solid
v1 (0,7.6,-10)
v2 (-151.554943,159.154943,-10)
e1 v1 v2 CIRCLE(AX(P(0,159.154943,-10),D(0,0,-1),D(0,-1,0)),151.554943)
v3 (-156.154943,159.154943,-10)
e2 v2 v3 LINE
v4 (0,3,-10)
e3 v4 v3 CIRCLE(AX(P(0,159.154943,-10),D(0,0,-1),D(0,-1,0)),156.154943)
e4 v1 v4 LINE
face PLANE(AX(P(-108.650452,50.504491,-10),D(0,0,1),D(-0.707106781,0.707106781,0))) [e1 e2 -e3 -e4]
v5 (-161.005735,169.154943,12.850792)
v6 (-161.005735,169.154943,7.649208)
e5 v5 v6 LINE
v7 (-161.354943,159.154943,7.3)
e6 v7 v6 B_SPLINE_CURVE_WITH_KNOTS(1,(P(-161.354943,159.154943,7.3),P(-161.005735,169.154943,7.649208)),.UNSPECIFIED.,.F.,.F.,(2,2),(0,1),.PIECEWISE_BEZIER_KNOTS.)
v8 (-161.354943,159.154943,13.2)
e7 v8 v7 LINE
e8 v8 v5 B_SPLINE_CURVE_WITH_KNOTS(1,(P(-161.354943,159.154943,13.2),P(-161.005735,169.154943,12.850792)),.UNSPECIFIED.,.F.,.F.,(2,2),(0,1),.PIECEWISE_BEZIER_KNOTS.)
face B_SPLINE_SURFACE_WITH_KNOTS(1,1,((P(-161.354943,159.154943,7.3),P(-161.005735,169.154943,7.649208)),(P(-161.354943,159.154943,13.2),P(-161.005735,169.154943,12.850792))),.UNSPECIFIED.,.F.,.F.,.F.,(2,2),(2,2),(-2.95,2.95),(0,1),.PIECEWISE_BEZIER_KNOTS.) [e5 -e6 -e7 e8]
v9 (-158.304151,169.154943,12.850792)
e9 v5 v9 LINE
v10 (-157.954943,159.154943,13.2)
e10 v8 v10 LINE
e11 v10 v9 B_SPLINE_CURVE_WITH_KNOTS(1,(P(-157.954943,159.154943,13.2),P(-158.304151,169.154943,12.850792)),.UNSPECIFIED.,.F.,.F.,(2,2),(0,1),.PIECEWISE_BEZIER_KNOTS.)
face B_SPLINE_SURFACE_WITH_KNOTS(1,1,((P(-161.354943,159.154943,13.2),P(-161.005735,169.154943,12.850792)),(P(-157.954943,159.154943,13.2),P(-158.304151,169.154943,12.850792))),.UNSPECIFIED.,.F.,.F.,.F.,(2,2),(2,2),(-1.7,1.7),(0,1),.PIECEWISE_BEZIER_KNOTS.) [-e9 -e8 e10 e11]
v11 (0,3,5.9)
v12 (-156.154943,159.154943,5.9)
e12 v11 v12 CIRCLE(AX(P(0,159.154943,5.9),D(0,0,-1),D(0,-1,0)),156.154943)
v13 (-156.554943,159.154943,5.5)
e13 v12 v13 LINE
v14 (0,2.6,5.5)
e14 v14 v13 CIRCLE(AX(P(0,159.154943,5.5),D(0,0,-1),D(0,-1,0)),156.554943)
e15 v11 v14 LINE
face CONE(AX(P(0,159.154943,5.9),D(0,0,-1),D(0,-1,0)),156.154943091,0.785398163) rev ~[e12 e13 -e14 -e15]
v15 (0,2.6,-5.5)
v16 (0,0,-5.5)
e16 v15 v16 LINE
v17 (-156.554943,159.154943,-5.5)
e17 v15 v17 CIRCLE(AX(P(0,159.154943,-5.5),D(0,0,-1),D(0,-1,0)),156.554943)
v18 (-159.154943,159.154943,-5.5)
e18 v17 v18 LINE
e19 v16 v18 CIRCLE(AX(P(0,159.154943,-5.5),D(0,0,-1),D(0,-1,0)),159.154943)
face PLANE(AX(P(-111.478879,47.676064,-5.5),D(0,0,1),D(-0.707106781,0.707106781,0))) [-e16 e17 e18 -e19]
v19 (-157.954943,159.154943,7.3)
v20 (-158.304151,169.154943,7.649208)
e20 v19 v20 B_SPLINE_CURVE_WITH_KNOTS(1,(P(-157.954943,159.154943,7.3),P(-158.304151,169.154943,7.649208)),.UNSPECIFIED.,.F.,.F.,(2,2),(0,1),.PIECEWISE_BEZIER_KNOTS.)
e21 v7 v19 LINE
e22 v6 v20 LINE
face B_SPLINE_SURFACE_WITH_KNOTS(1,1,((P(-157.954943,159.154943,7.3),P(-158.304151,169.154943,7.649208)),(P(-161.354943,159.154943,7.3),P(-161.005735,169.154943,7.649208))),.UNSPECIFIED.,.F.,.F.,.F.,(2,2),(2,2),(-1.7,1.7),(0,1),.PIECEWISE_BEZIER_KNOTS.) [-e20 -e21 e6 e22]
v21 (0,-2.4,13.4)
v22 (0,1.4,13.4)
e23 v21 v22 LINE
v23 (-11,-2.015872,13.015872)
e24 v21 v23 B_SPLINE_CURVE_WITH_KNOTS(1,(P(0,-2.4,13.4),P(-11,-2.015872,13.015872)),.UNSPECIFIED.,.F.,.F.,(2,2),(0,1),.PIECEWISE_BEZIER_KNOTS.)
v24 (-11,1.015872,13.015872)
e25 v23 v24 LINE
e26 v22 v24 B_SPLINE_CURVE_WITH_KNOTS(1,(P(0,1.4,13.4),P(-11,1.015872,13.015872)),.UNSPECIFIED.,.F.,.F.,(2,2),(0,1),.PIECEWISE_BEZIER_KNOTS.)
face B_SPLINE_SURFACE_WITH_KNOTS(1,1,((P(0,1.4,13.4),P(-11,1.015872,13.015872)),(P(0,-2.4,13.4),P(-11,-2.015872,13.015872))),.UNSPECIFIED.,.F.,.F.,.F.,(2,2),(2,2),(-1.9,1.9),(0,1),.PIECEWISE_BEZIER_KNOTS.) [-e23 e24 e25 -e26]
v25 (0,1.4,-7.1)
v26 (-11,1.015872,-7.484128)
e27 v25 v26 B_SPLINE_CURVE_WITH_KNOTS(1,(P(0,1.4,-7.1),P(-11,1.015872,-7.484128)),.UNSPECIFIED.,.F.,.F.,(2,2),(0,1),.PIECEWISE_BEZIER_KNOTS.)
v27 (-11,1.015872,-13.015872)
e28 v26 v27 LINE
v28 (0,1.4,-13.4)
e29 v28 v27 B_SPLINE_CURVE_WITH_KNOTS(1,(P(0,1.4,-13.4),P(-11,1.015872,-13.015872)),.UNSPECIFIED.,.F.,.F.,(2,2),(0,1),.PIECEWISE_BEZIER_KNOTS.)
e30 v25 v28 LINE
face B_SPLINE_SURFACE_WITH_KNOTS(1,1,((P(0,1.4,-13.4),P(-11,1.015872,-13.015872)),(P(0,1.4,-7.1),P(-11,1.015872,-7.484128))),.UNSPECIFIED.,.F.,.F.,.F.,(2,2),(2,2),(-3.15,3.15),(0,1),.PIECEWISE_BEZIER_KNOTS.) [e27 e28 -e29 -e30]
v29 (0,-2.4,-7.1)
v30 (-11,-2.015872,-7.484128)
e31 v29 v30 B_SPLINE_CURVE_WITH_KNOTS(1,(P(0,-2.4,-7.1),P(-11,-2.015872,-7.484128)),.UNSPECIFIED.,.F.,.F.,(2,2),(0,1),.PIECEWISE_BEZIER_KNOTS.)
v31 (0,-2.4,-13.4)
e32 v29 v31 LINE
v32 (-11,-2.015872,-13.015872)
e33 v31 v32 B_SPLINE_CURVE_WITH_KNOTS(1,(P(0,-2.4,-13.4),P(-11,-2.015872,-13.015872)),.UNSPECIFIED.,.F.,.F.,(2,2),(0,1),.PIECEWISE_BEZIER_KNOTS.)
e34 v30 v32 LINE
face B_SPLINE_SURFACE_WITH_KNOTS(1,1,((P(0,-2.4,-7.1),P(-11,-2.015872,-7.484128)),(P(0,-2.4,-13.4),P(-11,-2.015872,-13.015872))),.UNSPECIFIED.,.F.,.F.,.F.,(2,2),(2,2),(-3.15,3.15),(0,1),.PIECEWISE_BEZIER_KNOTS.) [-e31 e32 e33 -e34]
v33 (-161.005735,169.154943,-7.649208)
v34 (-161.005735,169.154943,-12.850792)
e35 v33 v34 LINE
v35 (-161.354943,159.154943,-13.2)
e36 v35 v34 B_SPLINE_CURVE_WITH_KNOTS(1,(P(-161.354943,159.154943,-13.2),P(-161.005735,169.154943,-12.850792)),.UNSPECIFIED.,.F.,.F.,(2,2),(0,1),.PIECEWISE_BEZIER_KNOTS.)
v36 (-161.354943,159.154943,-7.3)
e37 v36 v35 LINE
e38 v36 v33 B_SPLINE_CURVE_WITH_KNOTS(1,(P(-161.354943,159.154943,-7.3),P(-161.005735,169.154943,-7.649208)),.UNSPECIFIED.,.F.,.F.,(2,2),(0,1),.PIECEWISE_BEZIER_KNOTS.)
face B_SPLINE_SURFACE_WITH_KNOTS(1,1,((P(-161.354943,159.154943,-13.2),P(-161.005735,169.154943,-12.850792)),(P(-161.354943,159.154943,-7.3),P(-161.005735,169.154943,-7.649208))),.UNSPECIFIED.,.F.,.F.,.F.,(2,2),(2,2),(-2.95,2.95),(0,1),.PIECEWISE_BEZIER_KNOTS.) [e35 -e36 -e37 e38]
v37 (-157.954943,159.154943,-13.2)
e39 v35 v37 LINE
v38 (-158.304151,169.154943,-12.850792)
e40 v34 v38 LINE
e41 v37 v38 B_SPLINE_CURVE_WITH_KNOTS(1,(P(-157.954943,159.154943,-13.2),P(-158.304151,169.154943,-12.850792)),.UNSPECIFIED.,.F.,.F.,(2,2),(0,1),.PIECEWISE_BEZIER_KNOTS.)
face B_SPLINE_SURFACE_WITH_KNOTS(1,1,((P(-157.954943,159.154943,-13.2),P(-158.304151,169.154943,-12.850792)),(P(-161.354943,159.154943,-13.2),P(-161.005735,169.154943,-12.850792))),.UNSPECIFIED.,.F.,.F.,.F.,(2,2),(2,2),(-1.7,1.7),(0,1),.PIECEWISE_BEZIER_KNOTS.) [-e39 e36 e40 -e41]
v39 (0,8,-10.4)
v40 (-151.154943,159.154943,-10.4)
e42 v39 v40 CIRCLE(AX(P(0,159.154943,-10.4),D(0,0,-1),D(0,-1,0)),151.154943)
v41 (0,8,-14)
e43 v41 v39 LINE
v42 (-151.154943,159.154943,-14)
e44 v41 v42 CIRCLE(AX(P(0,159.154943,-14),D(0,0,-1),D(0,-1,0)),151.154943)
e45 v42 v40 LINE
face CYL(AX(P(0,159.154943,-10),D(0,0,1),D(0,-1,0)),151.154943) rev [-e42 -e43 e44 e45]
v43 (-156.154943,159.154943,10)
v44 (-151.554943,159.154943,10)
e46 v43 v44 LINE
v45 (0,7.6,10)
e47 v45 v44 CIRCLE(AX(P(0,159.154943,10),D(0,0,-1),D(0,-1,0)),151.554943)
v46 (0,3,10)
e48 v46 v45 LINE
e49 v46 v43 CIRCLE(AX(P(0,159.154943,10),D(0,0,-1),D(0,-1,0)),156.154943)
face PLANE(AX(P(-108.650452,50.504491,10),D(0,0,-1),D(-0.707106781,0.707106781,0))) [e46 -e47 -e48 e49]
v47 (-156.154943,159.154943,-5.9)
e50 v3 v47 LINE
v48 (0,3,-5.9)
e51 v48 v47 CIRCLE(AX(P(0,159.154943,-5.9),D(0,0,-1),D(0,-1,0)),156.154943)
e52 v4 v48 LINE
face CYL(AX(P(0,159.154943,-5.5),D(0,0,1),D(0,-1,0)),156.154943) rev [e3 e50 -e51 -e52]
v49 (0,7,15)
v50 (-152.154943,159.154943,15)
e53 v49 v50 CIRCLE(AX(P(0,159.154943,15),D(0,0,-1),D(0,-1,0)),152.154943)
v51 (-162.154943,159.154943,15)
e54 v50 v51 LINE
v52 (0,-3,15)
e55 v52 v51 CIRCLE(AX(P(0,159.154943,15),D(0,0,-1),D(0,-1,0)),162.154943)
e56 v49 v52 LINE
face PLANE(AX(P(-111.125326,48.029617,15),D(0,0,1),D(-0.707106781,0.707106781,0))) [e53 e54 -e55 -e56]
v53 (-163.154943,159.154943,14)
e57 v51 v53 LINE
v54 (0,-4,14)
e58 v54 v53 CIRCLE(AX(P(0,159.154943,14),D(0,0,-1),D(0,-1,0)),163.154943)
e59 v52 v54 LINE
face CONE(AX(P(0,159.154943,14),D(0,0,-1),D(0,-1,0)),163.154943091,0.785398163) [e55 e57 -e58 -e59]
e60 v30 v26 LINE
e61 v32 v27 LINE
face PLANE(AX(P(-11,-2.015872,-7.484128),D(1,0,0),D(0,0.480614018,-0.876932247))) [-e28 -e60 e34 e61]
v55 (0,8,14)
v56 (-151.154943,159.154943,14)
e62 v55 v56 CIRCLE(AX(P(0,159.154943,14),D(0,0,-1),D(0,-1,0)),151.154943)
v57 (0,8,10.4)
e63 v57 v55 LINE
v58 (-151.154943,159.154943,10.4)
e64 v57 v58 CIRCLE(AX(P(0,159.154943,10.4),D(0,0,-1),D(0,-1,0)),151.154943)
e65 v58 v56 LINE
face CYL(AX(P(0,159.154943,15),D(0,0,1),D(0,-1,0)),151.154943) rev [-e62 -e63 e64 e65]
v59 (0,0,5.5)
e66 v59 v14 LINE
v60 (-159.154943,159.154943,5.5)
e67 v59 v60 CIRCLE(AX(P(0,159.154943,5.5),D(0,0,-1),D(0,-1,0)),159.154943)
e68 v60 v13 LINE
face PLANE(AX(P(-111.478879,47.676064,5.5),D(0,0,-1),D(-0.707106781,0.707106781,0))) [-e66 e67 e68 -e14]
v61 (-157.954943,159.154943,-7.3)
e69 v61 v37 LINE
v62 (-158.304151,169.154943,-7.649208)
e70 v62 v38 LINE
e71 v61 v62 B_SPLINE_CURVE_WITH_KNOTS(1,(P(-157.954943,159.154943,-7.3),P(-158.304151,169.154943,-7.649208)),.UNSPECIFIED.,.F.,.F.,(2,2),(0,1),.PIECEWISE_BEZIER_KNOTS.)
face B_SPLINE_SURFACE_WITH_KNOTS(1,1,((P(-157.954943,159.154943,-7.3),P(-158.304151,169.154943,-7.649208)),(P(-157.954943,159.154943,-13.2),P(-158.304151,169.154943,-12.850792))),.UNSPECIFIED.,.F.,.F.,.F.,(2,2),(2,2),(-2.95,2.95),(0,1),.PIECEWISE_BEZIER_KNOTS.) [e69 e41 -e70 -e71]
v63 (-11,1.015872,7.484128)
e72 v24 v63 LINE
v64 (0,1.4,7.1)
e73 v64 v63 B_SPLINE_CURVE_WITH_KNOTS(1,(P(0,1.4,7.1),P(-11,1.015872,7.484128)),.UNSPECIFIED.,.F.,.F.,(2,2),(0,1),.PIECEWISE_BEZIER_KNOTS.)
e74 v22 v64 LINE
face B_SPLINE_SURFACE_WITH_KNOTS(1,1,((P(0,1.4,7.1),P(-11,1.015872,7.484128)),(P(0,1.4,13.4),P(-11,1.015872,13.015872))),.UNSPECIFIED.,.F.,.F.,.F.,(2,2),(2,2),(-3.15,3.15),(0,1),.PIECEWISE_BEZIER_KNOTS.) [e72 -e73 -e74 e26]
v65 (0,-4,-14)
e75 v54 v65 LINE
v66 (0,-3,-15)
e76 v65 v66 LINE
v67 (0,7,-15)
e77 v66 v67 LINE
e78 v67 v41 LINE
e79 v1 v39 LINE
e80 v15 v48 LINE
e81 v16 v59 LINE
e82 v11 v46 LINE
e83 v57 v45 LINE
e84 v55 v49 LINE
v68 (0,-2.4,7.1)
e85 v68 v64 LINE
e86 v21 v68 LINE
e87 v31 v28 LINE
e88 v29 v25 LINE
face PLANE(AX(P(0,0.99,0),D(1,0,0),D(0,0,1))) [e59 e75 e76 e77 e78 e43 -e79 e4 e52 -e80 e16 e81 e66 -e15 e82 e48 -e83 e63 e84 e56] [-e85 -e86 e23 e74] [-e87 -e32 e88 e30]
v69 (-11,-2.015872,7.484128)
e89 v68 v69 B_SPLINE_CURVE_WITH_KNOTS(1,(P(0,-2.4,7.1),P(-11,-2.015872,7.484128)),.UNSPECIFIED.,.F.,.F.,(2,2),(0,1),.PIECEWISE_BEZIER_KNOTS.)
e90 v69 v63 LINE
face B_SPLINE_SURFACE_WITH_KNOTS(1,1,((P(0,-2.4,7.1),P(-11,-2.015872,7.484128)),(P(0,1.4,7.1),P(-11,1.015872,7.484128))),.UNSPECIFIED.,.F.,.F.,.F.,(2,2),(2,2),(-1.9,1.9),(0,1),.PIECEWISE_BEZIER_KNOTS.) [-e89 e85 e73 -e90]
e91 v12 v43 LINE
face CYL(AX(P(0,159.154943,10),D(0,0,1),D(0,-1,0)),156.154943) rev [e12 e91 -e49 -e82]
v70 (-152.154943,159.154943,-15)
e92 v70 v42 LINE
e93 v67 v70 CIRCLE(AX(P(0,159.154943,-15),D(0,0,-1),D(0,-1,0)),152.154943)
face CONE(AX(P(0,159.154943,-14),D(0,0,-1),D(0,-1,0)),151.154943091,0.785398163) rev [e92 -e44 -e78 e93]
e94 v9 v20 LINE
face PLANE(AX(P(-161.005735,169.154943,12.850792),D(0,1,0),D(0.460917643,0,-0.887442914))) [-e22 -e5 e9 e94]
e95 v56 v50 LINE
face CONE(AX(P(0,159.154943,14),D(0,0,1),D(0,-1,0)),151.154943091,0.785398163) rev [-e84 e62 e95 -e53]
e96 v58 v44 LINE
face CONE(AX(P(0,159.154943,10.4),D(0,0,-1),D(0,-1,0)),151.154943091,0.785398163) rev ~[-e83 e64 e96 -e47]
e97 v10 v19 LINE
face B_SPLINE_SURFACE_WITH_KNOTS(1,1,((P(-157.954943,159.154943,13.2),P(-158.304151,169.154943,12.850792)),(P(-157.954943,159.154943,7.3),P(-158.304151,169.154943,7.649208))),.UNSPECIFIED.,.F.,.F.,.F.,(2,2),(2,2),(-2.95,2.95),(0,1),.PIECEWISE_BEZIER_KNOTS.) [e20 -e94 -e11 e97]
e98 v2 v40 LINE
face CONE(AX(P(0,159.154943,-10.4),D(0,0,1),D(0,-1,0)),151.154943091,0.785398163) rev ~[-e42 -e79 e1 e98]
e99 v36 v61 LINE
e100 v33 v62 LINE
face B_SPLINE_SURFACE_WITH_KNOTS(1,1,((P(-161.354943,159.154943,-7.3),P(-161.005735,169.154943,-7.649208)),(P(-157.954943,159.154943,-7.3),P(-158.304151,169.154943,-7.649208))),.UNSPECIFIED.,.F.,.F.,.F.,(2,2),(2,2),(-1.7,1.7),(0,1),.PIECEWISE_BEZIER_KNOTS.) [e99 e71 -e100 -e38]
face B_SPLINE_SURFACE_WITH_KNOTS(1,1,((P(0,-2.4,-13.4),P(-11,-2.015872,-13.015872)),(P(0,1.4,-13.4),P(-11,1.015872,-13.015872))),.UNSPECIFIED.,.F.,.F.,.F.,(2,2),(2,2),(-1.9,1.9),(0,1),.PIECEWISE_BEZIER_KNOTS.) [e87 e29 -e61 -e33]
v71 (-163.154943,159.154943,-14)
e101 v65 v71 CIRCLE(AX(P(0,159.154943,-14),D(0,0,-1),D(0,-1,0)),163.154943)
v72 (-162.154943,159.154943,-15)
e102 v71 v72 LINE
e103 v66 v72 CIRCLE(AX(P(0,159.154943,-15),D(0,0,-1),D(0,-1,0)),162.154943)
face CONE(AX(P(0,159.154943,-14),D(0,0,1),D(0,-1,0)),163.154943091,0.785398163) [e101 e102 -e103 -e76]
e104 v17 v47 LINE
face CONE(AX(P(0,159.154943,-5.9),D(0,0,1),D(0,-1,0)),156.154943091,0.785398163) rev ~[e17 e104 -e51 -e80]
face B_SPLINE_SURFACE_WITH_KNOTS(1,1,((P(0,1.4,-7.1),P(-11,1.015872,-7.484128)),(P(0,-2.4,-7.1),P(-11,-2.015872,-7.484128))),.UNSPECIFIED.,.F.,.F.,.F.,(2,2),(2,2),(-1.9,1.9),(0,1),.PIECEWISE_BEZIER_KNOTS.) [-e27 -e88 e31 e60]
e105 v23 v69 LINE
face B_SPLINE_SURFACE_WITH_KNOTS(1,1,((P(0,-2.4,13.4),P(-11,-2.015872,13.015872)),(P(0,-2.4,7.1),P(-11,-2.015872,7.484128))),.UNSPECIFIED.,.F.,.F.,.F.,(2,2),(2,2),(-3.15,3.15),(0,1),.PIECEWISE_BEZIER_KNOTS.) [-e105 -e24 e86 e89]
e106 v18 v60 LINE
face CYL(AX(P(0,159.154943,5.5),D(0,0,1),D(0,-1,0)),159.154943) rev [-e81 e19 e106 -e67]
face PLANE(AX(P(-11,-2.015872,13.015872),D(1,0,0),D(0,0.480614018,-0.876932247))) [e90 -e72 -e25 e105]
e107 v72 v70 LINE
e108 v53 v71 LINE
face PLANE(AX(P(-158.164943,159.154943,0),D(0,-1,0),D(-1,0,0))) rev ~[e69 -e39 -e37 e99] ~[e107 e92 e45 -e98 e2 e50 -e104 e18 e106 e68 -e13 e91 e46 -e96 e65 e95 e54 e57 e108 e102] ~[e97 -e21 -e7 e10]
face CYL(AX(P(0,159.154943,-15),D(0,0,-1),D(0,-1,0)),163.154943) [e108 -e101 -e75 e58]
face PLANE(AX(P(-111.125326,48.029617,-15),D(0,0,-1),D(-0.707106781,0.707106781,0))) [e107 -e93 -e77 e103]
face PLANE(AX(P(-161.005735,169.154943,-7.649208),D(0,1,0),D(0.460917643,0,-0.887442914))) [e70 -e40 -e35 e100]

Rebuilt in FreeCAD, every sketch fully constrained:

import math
import FreeCAD as App
import Part
import Sketcher


def edges_at(feature, points):
    """Names of the edges that pass closest to the given points."""
    edges = feature.Shape.Edges
    near = lambda p: min(range(len(edges)), key=lambda i: edges[i].distToShape(Part.Vertex(*p))[0])
    return sorted({f"Edge{near(p) + 1}" for p in points})


def add_polygon(sketch, points):
    """Adds a closed chain of lines whose ends are joined by coincident constraints."""
    first, n = sketch.GeometryCount, len(points)
    for a, b in zip(points, points[1:] + points[:1]):
        sketch.addGeometry(Part.LineSegment(App.Vector(*a, 0), App.Vector(*b, 0)), False)
    for i in range(n):
        sketch.addConstraint(Sketcher.Constraint("Coincident", first + i, 2, first + (i + 1) % n, 1))

doc = App.newDocument("Part")
body = doc.addObject("PartDesign::Body", "Body")

# Sketch on YZ plane
sketch1 = doc.addObject("Sketcher::SketchObject", "Sketch")
body.addObject(sketch1)
sketch1.AttachmentSupport = (doc.YZ_Plane, [""])
sketch1.MapMode = "FlatFace"
add_polygon(sketch1, [(0, -5.5), (0, 5.5), (3, 5.5), (3, 10), (8, 10), (8, 15), (-4, 15), (-4, -15), (8, -15), (8, -10), (3, -10), (3, -5.5)])  # lines 0-11
sketch1.addConstraint(Sketcher.Constraint("Vertical", 0))
sketch1.addConstraint(Sketcher.Constraint("Horizontal", 1))
sketch1.addConstraint(Sketcher.Constraint("Vertical", 2))
sketch1.addConstraint(Sketcher.Constraint("Horizontal", 3))
sketch1.addConstraint(Sketcher.Constraint("Vertical", 4))
sketch1.addConstraint(Sketcher.Constraint("Horizontal", 5))
sketch1.addConstraint(Sketcher.Constraint("Vertical", 6))
sketch1.addConstraint(Sketcher.Constraint("Horizontal", 7))
sketch1.addConstraint(Sketcher.Constraint("Vertical", 8))
sketch1.addConstraint(Sketcher.Constraint("Horizontal", 9))
sketch1.addConstraint(Sketcher.Constraint("Vertical", 10))
sketch1.addConstraint(Sketcher.Constraint("Horizontal", 11))
sketch1.addConstraint(Sketcher.Constraint("Symmetric", 0, 2, 11, 2, -1, 1))
sketch1.addConstraint(Sketcher.Constraint("Symmetric", 4, 2, 7, 2, -1))
sketch1.addConstraint(Sketcher.Constraint("Symmetric", 2, 2, 9, 2, -1))
sketch1.addConstraint(Sketcher.Constraint("Equal", 9, 4))
sketch1.addConstraint(Sketcher.Constraint("DistanceX", 1, 1, 1, 2, 3.0))
sketch1.addConstraint(Sketcher.Constraint("DistanceX", 3, 1, 3, 2, 5.0))
sketch1.addConstraint(Sketcher.Constraint("DistanceX", 5, 2, 5, 1, 12.0))
sketch1.addConstraint(Sketcher.Constraint("DistanceY", 0, 1, 0, 2, 11.0))
sketch1.addConstraint(Sketcher.Constraint("DistanceY", 6, 2, 6, 1, 30.0))

# Sketch on XY plane
sketch2 = doc.addObject("Sketcher::SketchObject", "Sketch001")
body.addObject(sketch2)
sketch2.AttachmentSupport = (doc.XY_Plane, [""])
sketch2.MapMode = "FlatFace"
sketch2.addGeometry(Part.ArcOfCircle(Part.Circle(App.Vector(0, 159.154943, 0), App.Vector(0, 0, 1), 159.154943), math.radians(180), math.radians(270)), False)
sketch2.addConstraint(Sketcher.Constraint("Coincident", 0, 2, -1, 1))
sketch2.addConstraint(Sketcher.Constraint("PointOnObject", 0, 3, -2))
sketch2.addConstraint(Sketcher.Constraint("Radius", 0, 159.154943))
sketch2.addConstraint(Sketcher.Constraint("DistanceY", -1, 1, 0, 1, 159.154943))
doc.recompute()

additivepipe = doc.addObject("PartDesign::AdditivePipe", "AdditivePipe")
body.addObject(additivepipe)
additivepipe.Profile = sketch1
additivepipe.Spine = (sketch2, ["Edge1"])
doc.recompute()

chamfer = doc.addObject("PartDesign::Chamfer", "Chamfer")
body.addObject(chamfer)
chamfer.Base = (additivepipe, edges_at(additivepipe, [
    (-106.883, 52.272, 15),
    (-115.368, 43.787, 15),
    (-115.368, 43.787, -15),
    (-106.883, 52.272, -15),
]))
chamfer.Size = 1
doc.recompute()

chamfer2 = doc.addObject("PartDesign::Chamfer", "Chamfer001")
body.addObject(chamfer2)
chamfer2.Base = (chamfer, edges_at(chamfer, [
    (-106.883, 52.272, 10),
    (-106.883, 52.272, -10),
    (-110.418, 48.737, -5.5),
    (-110.418, 48.737, 5.5),
]))
chamfer2.Size = 0.4

# Sketch on YZ plane
sketch3 = doc.addObject("Sketcher::SketchObject", "Sketch002")
body.addObject(sketch3)
sketch3.AttachmentSupport = (doc.YZ_Plane, [""])
sketch3.MapMode = "FlatFace"
add_polygon(sketch3, [(1.4, 13.4), (-2.4, 13.4), (-2.4, 7.1), (1.4, 7.1)])  # lines 0-3
add_polygon(sketch3, [(1.4, -7.1), (-2.4, -7.1), (-2.4, -13.4), (1.4, -13.4)])  # lines 4-7
sketch3.addConstraint(Sketcher.Constraint("Horizontal", 0))
sketch3.addConstraint(Sketcher.Constraint("Vertical", 1))
sketch3.addConstraint(Sketcher.Constraint("Horizontal", 2))
sketch3.addConstraint(Sketcher.Constraint("Vertical", 3))
sketch3.addConstraint(Sketcher.Constraint("Horizontal", 4))
sketch3.addConstraint(Sketcher.Constraint("Vertical", 5))
sketch3.addConstraint(Sketcher.Constraint("Horizontal", 6))
sketch3.addConstraint(Sketcher.Constraint("Vertical", 7))
sketch3.addConstraint(Sketcher.Constraint("Symmetric", 1, 2, 4, 2, -1))
sketch3.addConstraint(Sketcher.Constraint("Symmetric", 3, 2, 6, 2, -1))
sketch3.addConstraint(Sketcher.Constraint("DistanceX", 0, 2, 0, 1, 3.8))
sketch3.addConstraint(Sketcher.Constraint("DistanceY", 1, 2, 1, 1, 6.3))
sketch3.addConstraint(Sketcher.Constraint("DistanceX", 0, 2, -1, 1, 2.4))
sketch3.addConstraint(Sketcher.Constraint("DistanceY", -1, 1, 0, 2, 13.4))
pocket1 = doc.addObject("PartDesign::Pocket", "Pocket")
body.addObject(pocket1)
pocket1.Profile = sketch3
pocket1.Length = 11
pocket1.TaperAngle = -2

# Sketch on XZ plane
sketch4 = doc.addObject("Sketcher::SketchObject", "Sketch003")
body.addObject(sketch4)
sketch4.AttachmentSupport = (doc.XZ_Plane, [""])
sketch4.MapMode = "FlatFace"
sketch4.AttachmentOffset = App.Placement(App.Vector(0, 0, -159.154943), App.Rotation())
add_polygon(sketch4, [(-161.354943, 7.3), (-161.354943, 13.2), (-157.954943, 13.2), (-157.954943, 7.3)])  # lines 0-3
add_polygon(sketch4, [(-161.354943, -13.2), (-161.354943, -7.3), (-157.954943, -7.3), (-157.954943, -13.2)])  # lines 4-7
sketch4.addConstraint(Sketcher.Constraint("Vertical", 0))
sketch4.addConstraint(Sketcher.Constraint("Horizontal", 1))
sketch4.addConstraint(Sketcher.Constraint("Vertical", 2))
sketch4.addConstraint(Sketcher.Constraint("Horizontal", 3))
sketch4.addConstraint(Sketcher.Constraint("Vertical", 4))
sketch4.addConstraint(Sketcher.Constraint("Horizontal", 5))
sketch4.addConstraint(Sketcher.Constraint("Vertical", 6))
sketch4.addConstraint(Sketcher.Constraint("Horizontal", 7))
sketch4.addConstraint(Sketcher.Constraint("Symmetric", 3, 2, 4, 2, -1))
sketch4.addConstraint(Sketcher.Constraint("Symmetric", 1, 2, 6, 2, -1))
sketch4.addConstraint(Sketcher.Constraint("DistanceX", 1, 1, 1, 2, 3.4))
sketch4.addConstraint(Sketcher.Constraint("DistanceY", 0, 1, 0, 2, 5.9))
sketch4.addConstraint(Sketcher.Constraint("DistanceY", -1, 1, 0, 2, 13.2))
sketch4.addConstraint(Sketcher.Constraint("DistanceX", 0, 2, -1, 1, 161.354943))
pad1 = doc.addObject("PartDesign::Pad", "Pad")
body.addObject(pad1)
pad1.Profile = sketch4
pad1.Length = 10
pad1.Reversed = True
pad1.TaperAngle = -2

doc.recompute()
